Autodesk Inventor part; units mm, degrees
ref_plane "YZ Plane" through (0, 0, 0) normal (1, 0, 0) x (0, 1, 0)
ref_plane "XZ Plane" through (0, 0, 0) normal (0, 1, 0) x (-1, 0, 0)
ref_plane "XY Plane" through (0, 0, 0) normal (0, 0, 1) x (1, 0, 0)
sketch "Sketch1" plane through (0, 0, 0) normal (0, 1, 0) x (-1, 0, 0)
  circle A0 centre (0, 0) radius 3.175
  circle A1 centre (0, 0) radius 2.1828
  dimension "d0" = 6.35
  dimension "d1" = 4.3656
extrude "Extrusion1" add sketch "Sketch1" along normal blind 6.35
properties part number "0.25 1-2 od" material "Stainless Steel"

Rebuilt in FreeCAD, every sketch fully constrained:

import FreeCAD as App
import Part
import Sketcher
Q = App.Units.Quantity

doc = App.newDocument("Part")
body = doc.addObject("PartDesign::Body", "Body")

# Sketch on XZ plane
sketch1 = body.newObject("Sketcher::SketchObject", "Sketch")
sketch1.AttachmentSupport = (doc.getObject("XZ_Plane"), [""])
sketch1.MapMode = "FlatFace"
sketch1.addGeometry(Part.Circle(App.Vector(0, 0, 0), App.Vector(0, 0, 1), 3.175), False)
sketch1.addGeometry(Part.Circle(App.Vector(0, 0, 0), App.Vector(0, 0, 1), 2.1828), False)
sketch1.addConstraint(Sketcher.Constraint("Coincident", 0, 3, -1, 1))
sketch1.addConstraint(Sketcher.Constraint("Coincident", 1, 3, -1, 1))
sketch1.addConstraint(Sketcher.Constraint("Diameter", 0, Q("0.25 in")))
sketch1.addConstraint(Sketcher.Constraint("Diameter", 1, Q("0.171874 in")))
pad1 = body.newObject("PartDesign::Pad", "Pad")
pad1.Profile = sketch1
pad1.Length = Q("0.25 in")
pad1.Reversed = True

doc.recompute()
